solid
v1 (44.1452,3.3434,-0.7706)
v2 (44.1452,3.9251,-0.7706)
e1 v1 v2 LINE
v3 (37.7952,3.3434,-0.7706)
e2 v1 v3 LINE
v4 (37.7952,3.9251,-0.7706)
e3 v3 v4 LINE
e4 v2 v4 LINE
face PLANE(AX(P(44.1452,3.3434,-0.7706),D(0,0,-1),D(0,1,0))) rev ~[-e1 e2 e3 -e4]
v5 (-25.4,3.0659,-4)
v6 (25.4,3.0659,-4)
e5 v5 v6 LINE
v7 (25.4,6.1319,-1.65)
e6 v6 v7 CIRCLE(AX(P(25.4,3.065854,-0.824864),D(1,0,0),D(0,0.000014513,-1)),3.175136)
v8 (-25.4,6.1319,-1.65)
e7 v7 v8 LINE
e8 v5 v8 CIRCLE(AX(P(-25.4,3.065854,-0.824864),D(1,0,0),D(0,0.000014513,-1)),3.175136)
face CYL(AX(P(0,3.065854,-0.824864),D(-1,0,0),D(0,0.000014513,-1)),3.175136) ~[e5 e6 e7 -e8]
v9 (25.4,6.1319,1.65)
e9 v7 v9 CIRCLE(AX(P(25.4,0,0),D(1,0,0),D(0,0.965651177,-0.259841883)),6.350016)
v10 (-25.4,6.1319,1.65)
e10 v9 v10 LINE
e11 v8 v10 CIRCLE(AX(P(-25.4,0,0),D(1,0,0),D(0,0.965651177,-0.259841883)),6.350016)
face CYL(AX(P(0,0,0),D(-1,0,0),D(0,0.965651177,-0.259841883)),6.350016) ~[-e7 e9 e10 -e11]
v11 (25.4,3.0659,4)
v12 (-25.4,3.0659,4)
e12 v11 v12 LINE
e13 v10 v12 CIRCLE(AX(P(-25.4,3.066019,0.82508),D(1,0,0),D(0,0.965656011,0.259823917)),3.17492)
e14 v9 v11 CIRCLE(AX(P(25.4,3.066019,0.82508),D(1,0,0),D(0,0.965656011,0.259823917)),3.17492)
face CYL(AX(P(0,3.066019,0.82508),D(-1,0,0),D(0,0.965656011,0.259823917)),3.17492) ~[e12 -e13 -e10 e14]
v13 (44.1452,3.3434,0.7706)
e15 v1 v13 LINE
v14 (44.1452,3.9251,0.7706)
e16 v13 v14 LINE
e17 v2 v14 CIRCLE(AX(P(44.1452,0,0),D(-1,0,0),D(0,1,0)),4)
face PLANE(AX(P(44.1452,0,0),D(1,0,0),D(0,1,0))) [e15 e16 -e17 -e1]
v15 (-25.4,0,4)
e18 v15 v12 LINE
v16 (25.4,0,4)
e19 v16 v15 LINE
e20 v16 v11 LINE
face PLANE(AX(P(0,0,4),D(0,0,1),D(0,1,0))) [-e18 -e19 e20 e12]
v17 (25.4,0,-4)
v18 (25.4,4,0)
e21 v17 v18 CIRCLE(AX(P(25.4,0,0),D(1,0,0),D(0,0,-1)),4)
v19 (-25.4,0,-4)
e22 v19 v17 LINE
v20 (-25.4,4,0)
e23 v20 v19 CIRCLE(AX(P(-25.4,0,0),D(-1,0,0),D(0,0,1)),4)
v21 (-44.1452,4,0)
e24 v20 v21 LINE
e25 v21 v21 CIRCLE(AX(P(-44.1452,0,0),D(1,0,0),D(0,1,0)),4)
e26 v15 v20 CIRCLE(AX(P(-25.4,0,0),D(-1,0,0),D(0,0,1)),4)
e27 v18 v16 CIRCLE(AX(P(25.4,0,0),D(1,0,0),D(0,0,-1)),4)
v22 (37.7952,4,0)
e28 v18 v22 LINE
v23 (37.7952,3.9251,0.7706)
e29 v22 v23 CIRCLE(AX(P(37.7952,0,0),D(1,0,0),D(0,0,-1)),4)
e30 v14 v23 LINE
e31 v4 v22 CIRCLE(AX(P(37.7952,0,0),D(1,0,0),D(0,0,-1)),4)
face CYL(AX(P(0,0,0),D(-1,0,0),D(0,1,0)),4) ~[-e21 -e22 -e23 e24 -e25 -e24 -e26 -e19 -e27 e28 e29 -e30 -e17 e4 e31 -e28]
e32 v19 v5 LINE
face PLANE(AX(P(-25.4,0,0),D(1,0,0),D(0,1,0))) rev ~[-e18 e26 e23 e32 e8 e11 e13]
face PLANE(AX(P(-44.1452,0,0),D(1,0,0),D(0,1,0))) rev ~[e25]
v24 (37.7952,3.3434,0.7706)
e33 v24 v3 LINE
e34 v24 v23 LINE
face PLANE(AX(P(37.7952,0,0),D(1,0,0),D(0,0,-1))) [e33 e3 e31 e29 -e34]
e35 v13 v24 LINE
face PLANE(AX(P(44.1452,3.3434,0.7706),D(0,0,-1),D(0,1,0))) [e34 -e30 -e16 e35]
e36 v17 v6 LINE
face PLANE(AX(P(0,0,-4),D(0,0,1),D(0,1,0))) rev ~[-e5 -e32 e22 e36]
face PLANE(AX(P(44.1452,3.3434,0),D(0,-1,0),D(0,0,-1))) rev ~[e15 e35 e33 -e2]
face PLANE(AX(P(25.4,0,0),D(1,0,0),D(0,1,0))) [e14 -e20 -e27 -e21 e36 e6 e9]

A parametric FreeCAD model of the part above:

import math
import FreeCAD as App
import Part
import Sketcher

V = App.Vector
Q = App.Units.Quantity

doc = App.newDocument("Part")
params = doc.addObject("Spreadsheet::Sheet", "Params")
for row, (alias, value) in enumerate([
    ("pad1_length", "3.476 in"),
    ("sketch2_radius", "0.25 in"),
    ("sketch2_radius2", "0.125 in"),
    ("pad2_length", "2 in"),
    ("pocket1_length", "0.25 in"),
], start=1):
    params.set(f"A{row}", alias)
    params.set(f"B{row}", "=" + value)
    params.setAlias(f"B{row}", alias)

body = doc.addObject("PartDesign::Body", "Body")

# Sketch on YZ plane
sketch1 = body.newObject("Sketcher::SketchObject", "Sketch")
sketch1.AttachmentSupport = (doc.getObject("YZ_Plane"), [""])
sketch1.MapMode = "FlatFace"
sketch1.addGeometry(Part.Circle(V(0, 0, 0), V(0, 0, 1), 4), False)
sketch1.addConstraint([
    Sketcher.Constraint("Coincident", 0, 3, -1, 1),
    Sketcher.Constraint("Diameter", 0, Q("8 mm")),
])
pad1 = body.newObject("PartDesign::Pad", "Pad")
pad1.Profile = sketch1
pad1.setExpression("Length", "Params.pad1_length")
pad1.Midplane = True

# Sketch on YZ plane
sketch2 = body.newObject("Sketcher::SketchObject", "Sketch001")
sketch2.AttachmentSupport = (doc.getObject("YZ_Plane"), [""])
sketch2.MapMode = "FlatFace"
sketch2.addGeometry([
    Part.ArcOfCircle(Part.Circle(V(0, 0, 0), V(0, 0, 1), 4), math.radians(-90), math.radians(90)),  # 0
    Part.LineSegment(V(0, -4, 0), V(3.1, -4, 0)),  # 1
    Part.ArcOfCircle(Part.Circle(V(3.1, -0.8, 0), V(0, 0, 1), 3.2), math.radians(-90), math.radians(-15)),  # 2
    Part.ArcOfCircle(Part.Circle(V(0, 0, 0), V(0, 0, 1), 6.4), math.radians(-15), math.radians(15)),  # 3
    Part.ArcOfCircle(Part.Circle(V(3.1, 0.8, 0), V(0, 0, 1), 3.2), math.radians(15), math.radians(90)),  # 4
    Part.LineSegment(V(3.1, 4, 0), V(0, 4, 0)),  # 5
], False)
sketch2.addConstraint([
    Sketcher.Constraint("Tangent", 0, 1, 1, 1),
    Sketcher.Constraint("Tangent", 1, 2, 2, 1),
    Sketcher.Constraint("Tangent", 2, 2, 3, 1),
    Sketcher.Constraint("Tangent", 3, 2, 4, 1),
    Sketcher.Constraint("Tangent", 4, 2, 5, 1),
    Sketcher.Constraint("Tangent", 5, 2, 0, 2),
    Sketcher.Constraint("Horizontal", 1),
    Sketcher.Constraint("Horizontal", 5),
    Sketcher.Constraint("Coincident", 0, 3, -1, 1),
    Sketcher.Constraint("Coincident", 3, 3, -1, 1),
    Sketcher.Constraint("Equal", 2, 4),
    Sketcher.Constraint("Radius", 3, Q("0.25 in")),
    Sketcher.Constraint("Radius", 2, Q("0.125 in")),
    Sketcher.Constraint("Radius", 0, Q("4 mm")),
])
sketch2.setExpression("Constraints[11]", "Params.sketch2_radius")
sketch2.setExpression("Constraints[12]", "Params.sketch2_radius2")
pad2 = body.newObject("PartDesign::Pad", "Pad001")
pad2.Profile = sketch2
pad2.setExpression("Length", "Params.pad2_length")
pad2.Midplane = True

# Sketch on YZ plane
sketch3 = body.newObject("Sketcher::SketchObject", "Sketch002")
sketch3.AttachmentSupport = (doc.getObject("YZ_Plane"), [""])
sketch3.MapMode = "FlatFace"
sketch3.AttachmentOffset = App.Placement(V(0, 0, 1.738 * 25.4), App.Rotation())
sketch3.addGeometry([
    Part.LineSegment(V(3.3, -0.8, 0), V(3.9, -0.8, 0)),
    Part.ArcOfCircle(Part.Circle(V(0, 0, 0), V(0, 0, 1), 4), math.radians(-11), math.radians(11)),
    Part.LineSegment(V(3.9, 0.8, 0), V(3.3, 0.8, 0)),
    Part.LineSegment(V(3.3, 0.8, 0), V(3.3, -0.8, 0)),
], False)
sketch3.addConstraint([
    Sketcher.Constraint("Coincident", 0, 2, 1, 1),
    Sketcher.Constraint("Coincident", 1, 2, 2, 1),
    Sketcher.Constraint("Coincident", 2, 2, 3, 1),
    Sketcher.Constraint("Coincident", 3, 2, 0, 1),
    Sketcher.Constraint("Horizontal", 0),
    Sketcher.Constraint("Horizontal", 2),
    Sketcher.Constraint("Vertical", 3),
    Sketcher.Constraint("Coincident", 1, 3, -1, 1),
    Sketcher.Constraint("Vertical", 0, 2, 1, 2),
    Sketcher.Constraint("Radius", 1, Q("4 mm")),
    Sketcher.Constraint("DistanceX", 0, 1, 0, 2, Q("0.0229 in")),
    Sketcher.Constraint("DistanceY", 3, 2, 3, 1, Q("1.5412 mm")),
])
pocket1 = body.newObject("PartDesign::Pocket", "Pocket")
pocket1.Profile = sketch3
pocket1.setExpression("Length", "Params.pocket1_length")

doc.recompute()
